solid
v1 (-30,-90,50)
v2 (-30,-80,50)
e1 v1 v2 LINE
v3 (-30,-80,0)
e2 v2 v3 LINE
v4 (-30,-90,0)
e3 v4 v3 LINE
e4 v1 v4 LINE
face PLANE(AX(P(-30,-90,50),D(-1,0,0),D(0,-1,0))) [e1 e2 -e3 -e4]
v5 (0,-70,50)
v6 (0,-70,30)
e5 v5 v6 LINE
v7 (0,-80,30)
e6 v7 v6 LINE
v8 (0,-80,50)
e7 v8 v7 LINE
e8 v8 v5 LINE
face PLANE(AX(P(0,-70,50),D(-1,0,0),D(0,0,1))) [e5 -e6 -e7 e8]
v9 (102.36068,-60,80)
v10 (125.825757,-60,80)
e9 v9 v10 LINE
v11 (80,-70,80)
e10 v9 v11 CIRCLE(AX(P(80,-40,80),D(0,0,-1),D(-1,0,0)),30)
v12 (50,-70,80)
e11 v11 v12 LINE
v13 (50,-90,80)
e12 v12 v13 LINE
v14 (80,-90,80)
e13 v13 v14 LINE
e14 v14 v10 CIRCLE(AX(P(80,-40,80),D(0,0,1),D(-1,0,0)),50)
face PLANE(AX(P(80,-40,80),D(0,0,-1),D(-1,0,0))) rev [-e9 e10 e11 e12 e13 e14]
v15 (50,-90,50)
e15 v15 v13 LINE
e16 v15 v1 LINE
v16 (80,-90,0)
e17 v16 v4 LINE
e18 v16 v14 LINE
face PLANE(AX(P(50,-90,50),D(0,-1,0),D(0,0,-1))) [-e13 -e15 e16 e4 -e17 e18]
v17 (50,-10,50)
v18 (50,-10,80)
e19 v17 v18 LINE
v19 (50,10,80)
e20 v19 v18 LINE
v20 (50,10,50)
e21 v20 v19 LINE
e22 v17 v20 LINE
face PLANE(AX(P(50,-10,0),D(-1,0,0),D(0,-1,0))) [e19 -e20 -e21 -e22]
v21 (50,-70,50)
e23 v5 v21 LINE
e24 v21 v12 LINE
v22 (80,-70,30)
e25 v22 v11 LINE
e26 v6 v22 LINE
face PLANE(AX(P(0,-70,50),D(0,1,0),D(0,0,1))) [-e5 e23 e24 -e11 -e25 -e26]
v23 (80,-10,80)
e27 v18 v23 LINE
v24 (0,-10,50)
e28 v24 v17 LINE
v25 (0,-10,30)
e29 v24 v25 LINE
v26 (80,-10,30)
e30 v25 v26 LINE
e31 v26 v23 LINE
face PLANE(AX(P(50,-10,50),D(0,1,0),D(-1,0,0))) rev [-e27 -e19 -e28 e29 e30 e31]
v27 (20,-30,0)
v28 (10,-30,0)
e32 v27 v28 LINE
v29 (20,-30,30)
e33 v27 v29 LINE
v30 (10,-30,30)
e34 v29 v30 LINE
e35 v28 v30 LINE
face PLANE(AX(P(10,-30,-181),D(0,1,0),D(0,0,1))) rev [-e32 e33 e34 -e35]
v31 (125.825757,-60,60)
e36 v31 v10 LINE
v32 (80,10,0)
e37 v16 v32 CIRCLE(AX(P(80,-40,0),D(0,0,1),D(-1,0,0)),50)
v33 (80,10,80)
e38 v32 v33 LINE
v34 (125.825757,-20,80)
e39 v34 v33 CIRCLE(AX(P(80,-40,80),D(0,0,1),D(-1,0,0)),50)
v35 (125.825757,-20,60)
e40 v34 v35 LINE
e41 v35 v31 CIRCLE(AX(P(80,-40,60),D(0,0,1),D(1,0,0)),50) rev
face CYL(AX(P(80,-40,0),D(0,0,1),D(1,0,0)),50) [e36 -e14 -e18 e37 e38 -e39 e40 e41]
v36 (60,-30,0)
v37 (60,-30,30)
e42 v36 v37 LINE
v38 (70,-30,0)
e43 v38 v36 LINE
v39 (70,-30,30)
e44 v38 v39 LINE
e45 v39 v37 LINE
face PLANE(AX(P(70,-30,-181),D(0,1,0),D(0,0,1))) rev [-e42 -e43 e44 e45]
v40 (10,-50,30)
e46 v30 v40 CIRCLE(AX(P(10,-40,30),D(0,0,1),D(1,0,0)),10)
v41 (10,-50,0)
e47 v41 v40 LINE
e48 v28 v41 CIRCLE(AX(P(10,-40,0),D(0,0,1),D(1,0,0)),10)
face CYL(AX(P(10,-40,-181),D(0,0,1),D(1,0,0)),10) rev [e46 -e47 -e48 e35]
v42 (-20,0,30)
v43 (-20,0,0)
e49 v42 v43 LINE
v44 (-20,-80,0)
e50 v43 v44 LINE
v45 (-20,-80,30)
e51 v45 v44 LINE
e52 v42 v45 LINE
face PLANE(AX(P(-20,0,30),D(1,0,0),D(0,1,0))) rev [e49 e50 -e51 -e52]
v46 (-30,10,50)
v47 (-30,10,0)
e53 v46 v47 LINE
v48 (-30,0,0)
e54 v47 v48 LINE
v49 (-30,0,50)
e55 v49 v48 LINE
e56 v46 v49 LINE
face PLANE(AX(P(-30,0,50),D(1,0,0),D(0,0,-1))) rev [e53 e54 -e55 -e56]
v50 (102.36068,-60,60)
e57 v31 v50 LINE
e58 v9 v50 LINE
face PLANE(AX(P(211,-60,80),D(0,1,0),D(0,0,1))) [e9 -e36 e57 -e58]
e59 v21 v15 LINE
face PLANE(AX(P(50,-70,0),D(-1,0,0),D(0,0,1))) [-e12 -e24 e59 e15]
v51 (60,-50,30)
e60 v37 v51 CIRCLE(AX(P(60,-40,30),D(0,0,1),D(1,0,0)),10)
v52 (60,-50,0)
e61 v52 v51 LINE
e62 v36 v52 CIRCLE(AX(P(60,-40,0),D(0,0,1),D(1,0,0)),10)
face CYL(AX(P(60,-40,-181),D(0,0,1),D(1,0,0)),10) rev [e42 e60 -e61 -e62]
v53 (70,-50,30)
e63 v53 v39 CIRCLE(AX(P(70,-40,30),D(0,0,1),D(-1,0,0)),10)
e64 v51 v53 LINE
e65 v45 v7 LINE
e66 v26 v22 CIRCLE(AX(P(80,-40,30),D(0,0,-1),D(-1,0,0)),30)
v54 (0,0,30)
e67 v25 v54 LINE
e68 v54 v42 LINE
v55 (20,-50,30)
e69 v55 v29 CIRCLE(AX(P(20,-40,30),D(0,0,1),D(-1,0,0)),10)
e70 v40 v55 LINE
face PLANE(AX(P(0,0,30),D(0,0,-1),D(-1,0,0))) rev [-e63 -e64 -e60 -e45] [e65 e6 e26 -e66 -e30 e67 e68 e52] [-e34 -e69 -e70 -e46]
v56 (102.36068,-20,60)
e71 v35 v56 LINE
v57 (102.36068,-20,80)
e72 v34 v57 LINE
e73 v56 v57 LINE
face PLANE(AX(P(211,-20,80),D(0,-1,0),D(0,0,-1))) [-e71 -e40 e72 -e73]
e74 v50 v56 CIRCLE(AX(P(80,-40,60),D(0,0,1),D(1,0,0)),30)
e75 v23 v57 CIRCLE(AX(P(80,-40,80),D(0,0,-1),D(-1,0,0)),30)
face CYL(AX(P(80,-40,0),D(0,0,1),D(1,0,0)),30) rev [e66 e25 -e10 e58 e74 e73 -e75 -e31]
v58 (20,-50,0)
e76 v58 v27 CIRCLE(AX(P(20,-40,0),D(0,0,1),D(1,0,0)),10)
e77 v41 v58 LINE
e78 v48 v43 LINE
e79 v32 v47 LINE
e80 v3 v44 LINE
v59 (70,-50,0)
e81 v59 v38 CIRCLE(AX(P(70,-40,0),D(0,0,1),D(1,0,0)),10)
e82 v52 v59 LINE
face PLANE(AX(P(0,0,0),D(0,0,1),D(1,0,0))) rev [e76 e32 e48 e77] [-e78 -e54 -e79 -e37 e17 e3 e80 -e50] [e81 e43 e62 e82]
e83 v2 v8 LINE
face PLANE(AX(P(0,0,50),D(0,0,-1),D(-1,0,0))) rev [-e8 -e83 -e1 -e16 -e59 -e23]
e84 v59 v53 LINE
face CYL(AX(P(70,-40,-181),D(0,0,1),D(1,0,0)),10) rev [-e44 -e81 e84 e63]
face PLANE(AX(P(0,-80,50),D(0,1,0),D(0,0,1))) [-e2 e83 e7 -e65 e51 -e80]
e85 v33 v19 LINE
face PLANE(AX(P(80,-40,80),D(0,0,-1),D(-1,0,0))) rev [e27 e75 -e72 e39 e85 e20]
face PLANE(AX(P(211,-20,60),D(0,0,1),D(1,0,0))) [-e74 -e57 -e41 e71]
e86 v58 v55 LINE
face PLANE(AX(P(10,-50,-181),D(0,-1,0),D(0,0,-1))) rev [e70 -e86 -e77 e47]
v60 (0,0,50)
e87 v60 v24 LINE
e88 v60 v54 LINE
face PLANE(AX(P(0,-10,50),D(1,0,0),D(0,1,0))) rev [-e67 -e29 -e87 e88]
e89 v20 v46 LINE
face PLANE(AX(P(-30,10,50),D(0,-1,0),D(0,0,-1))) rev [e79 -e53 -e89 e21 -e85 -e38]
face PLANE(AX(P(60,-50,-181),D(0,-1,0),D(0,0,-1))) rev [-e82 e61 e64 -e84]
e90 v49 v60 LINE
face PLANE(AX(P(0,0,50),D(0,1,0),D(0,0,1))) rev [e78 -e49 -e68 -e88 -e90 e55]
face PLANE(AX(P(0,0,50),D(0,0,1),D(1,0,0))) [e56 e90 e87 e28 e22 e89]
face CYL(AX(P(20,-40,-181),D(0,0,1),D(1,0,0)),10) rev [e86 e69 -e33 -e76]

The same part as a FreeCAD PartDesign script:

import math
import FreeCAD as App
import Part
import Sketcher
from FreeCAD import Vector

doc = App.newDocument("Part")
body = doc.addObject("PartDesign::Body", "Body")

sketch1 = doc.addObject("Sketcher::SketchObject", "Sketch")
body.addObject(sketch1)
sketch1.AttachmentSupport = (doc.XY_Plane, [""])
sketch1.MapMode = "FlatFace"
sketch1.addGeometry([
    Part.LineSegment(Vector(-30, 0, 0), Vector(0, 0, 0)),
    Part.LineSegment(Vector(0, 0, 0), Vector(0, -10, 0)),
    Part.LineSegment(Vector(0, -10, 0), Vector(50, -10, 0)),
    Part.LineSegment(Vector(50, -10, 0), Vector(50, 10, 0)),
    Part.LineSegment(Vector(50, 10, 0), Vector(-30, 10, 0)),
    Part.LineSegment(Vector(-30, 10, 0), Vector(-30, 0, 0)),
], False)
sketch1.addConstraint([
    Sketcher.Constraint("Coincident", 0, 2, 1, 1),
    Sketcher.Constraint("Coincident", 1, 2, 2, 1),
    Sketcher.Constraint("Coincident", 2, 2, 3, 1),
    Sketcher.Constraint("Coincident", 3, 2, 4, 1),
    Sketcher.Constraint("Coincident", 4, 2, 5, 1),
    Sketcher.Constraint("Coincident", 5, 2, 0, 1),
    Sketcher.Constraint("Horizontal", 0),
    Sketcher.Constraint("Vertical", 1),
    Sketcher.Constraint("Horizontal", 2),
    Sketcher.Constraint("Vertical", 3),
    Sketcher.Constraint("Horizontal", 4),
    Sketcher.Constraint("Vertical", 5),
    Sketcher.Constraint("Coincident", 0, 2, -1, 1),
    Sketcher.Constraint("Equal", 1, 5),
    Sketcher.Constraint("DistanceX", 0, 1, 0, 2, 30.0),
    Sketcher.Constraint("DistanceX", 2, 1, 2, 2, 50.0),
    Sketcher.Constraint("DistanceY", 1, 2, 1, 1, 10.0),
])
pad1 = doc.addObject("PartDesign::Pad", "Pad")
body.addObject(pad1)
pad1.Profile = sketch1
pad1.Length = 50

sketch2 = doc.addObject("Sketcher::SketchObject", "Sketch001")
body.addObject(sketch2)
sketch2.AttachmentSupport = (doc.XY_Plane, [""])
sketch2.MapMode = "FlatFace"
sketch2.addGeometry([
    Part.LineSegment(Vector(0, 0, 0), Vector(0, -10, 0)),
    Part.LineSegment(Vector(0, -10, 0), Vector(80, -10, 0)),
    Part.ArcOfCircle(Part.Circle(Vector(80, -40, 0), Vector(0, 0, 1), 30), math.radians(-90), math.radians(90)),
    Part.LineSegment(Vector(80, -70, 0), Vector(0, -70, 0)),
    Part.LineSegment(Vector(0, -70, 0), Vector(0, -80, 0)),
    Part.LineSegment(Vector(0, -80, 0), Vector(-20, -80, 0)),
    Part.LineSegment(Vector(-20, -80, 0), Vector(-20, 0, 0)),
    Part.LineSegment(Vector(-20, 0, 0), Vector(0, 0, 0)),
], False)
sketch2.addConstraint([
    Sketcher.Constraint("Coincident", 0, 2, 1, 1),
    Sketcher.Constraint("Tangent", 1, 2, 2, 2),
    Sketcher.Constraint("Tangent", 2, 1, 3, 1),
    Sketcher.Constraint("Coincident", 3, 2, 4, 1),
    Sketcher.Constraint("Coincident", 4, 2, 5, 1),
    Sketcher.Constraint("Coincident", 5, 2, 6, 1),
    Sketcher.Constraint("Coincident", 6, 2, 7, 1),
    Sketcher.Constraint("Coincident", 7, 2, 0, 1),
    Sketcher.Constraint("Vertical", 0),
    Sketcher.Constraint("Horizontal", 1),
    Sketcher.Constraint("Horizontal", 3),
    Sketcher.Constraint("Vertical", 4),
    Sketcher.Constraint("Horizontal", 5),
    Sketcher.Constraint("Vertical", 6),
    Sketcher.Constraint("Horizontal", 7),
    Sketcher.Constraint("Coincident", 7, 2, -1, 1),
    Sketcher.Constraint("PointOnObject", 3, 2, -2),
    Sketcher.Constraint("Equal", 0, 4),
    Sketcher.Constraint("Equal", 3, 6),
    Sketcher.Constraint("Radius", 2, 30.0),
    Sketcher.Constraint("DistanceX", 1, 1, 1, 2, 80.0),
    Sketcher.Constraint("DistanceX", 5, 2, 5, 1, 20.0),
])
pad2 = doc.addObject("PartDesign::Pad", "Pad001")
body.addObject(pad2)
pad2.Profile = sketch2
pad2.Length = 30

sketch3 = doc.addObject("Sketcher::SketchObject", "Sketch002")
body.addObject(sketch3)
sketch3.AttachmentSupport = (doc.XY_Plane, [""])
sketch3.MapMode = "FlatFace"
sketch3.addGeometry([
    Part.LineSegment(Vector(0, -80, 0), Vector(0, -70, 0)),
    Part.LineSegment(Vector(0, -70, 0), Vector(50, -70, 0)),
    Part.LineSegment(Vector(50, -70, 0), Vector(50, -90, 0)),
    Part.LineSegment(Vector(50, -90, 0), Vector(-30, -90, 0)),
    Part.LineSegment(Vector(-30, -90, 0), Vector(-30, -80, 0)),
    Part.LineSegment(Vector(-30, -80, 0), Vector(0, -80, 0)),
], False)
sketch3.addConstraint([
    Sketcher.Constraint("Coincident", 0, 2, 1, 1),
    Sketcher.Constraint("Coincident", 1, 2, 2, 1),
    Sketcher.Constraint("Coincident", 2, 2, 3, 1),
    Sketcher.Constraint("Coincident", 3, 2, 4, 1),
    Sketcher.Constraint("Coincident", 4, 2, 5, 1),
    Sketcher.Constraint("Coincident", 5, 2, 0, 1),
    Sketcher.Constraint("Vertical", 0),
    Sketcher.Constraint("Horizontal", 1),
    Sketcher.Constraint("Vertical", 2),
    Sketcher.Constraint("Horizontal", 3),
    Sketcher.Constraint("Vertical", 4),
    Sketcher.Constraint("Horizontal", 5),
    Sketcher.Constraint("PointOnObject", 0, 2, -2),
    Sketcher.Constraint("Equal", 0, 4),
    Sketcher.Constraint("DistanceX", 1, 1, 1, 2, 50.0),
    Sketcher.Constraint("DistanceX", 3, 2, 3, 1, 80.0),
    Sketcher.Constraint("DistanceY", 0, 1, 0, 2, 10.0),
    Sketcher.Constraint("DistanceY", 0, 2, -1, 1, 70.0),
])
pad3 = doc.addObject("PartDesign::Pad", "Pad002")
body.addObject(pad3)
pad3.Profile = sketch3
pad3.Length = 50

sketch4 = doc.addObject("Sketcher::SketchObject", "Sketch003")
body.addObject(sketch4)
sketch4.AttachmentSupport = (doc.XY_Plane, [""])
sketch4.MapMode = "FlatFace"
sketch4.AttachmentOffset = App.Placement(Vector(0, 0, 30), App.Rotation())
sketch4.addGeometry([
    Part.LineSegment(Vector(50, -90, 0), Vector(80, -90, 0)),
    Part.ArcOfCircle(Part.Circle(Vector(80, -40, 0), Vector(0, 0, 1), 50), math.radians(-90), math.radians(90)),
    Part.LineSegment(Vector(80, 10, 0), Vector(50, 10, 0)),
    Part.LineSegment(Vector(50, 10, 0), Vector(50, -10, 0)),
    Part.LineSegment(Vector(50, -10, 0), Vector(80, -10, 0)),
    Part.ArcOfCircle(Part.Circle(Vector(80, -40, 0), Vector(0, 0, 1), 30), math.radians(-90), math.radians(90)),
    Part.LineSegment(Vector(80, -70, 0), Vector(50, -70, 0)),
    Part.LineSegment(Vector(50, -70, 0), Vector(50, -90, 0)),
], False)
sketch4.addConstraint([
    Sketcher.Constraint("Tangent", 0, 2, 1, 1),
    Sketcher.Constraint("Tangent", 1, 2, 2, 1),
    Sketcher.Constraint("Coincident", 2, 2, 3, 1),
    Sketcher.Constraint("Coincident", 3, 2, 4, 1),
    Sketcher.Constraint("Tangent", 4, 2, 5, 2),
    Sketcher.Constraint("Tangent", 5, 1, 6, 1),
    Sketcher.Constraint("Coincident", 6, 2, 7, 1),
    Sketcher.Constraint("Coincident", 7, 2, 0, 1),
    Sketcher.Constraint("Horizontal", 0),
    Sketcher.Constraint("Horizontal", 2),
    Sketcher.Constraint("Vertical", 3),
    Sketcher.Constraint("Horizontal", 4),
    Sketcher.Constraint("Horizontal", 6),
    Sketcher.Constraint("Vertical", 7),
    Sketcher.Constraint("Coincident", 5, 3, 1, 3),
    Sketcher.Constraint("Vertical", 3, 2, 6, 2),
    Sketcher.Constraint("Radius", 1, 50.0),
    Sketcher.Constraint("Radius", 5, 30.0),
    Sketcher.Constraint("DistanceX", 0, 1, 0, 2, 30.0),
    Sketcher.Constraint("DistanceX", -1, 1, 1, 3, 80.0),
    Sketcher.Constraint("DistanceY", 1, 3, -1, 1, 40.0),
])
pad4 = doc.addObject("PartDesign::Pad", "Pad003")
body.addObject(pad4)
pad4.Profile = sketch4
pad4.Type = "TwoLengths"
pad4.Length = 50
pad4.Length2 = 30

sketch5 = doc.addObject("Sketcher::SketchObject", "Sketch004")
body.addObject(sketch5)
sketch5.AttachmentSupport = (doc.YZ_Plane, [""])
sketch5.MapMode = "FlatFace"
sketch5.addGeometry([
    Part.LineSegment(Vector(-20, 80, 0), Vector(-60, 80, 0)),
    Part.LineSegment(Vector(-60, 80, 0), Vector(-60, 60, 0)),
    Part.LineSegment(Vector(-60, 60, 0), Vector(-20, 60, 0)),
    Part.LineSegment(Vector(-20, 60, 0), Vector(-20, 80, 0)),
], False)
sketch5.addConstraint([
    Sketcher.Constraint("Coincident", 0, 2, 1, 1),
    Sketcher.Constraint("Coincident", 1, 2, 2, 1),
    Sketcher.Constraint("Coincident", 2, 2, 3, 1),
    Sketcher.Constraint("Coincident", 3, 2, 0, 1),
    Sketcher.Constraint("Horizontal", 0),
    Sketcher.Constraint("Vertical", 1),
    Sketcher.Constraint("Horizontal", 2),
    Sketcher.Constraint("Vertical", 3),
    Sketcher.Constraint("DistanceX", 0, 2, 0, 1, 40.0),
    Sketcher.Constraint("DistanceY", 1, 2, 1, 1, 20.0),
    Sketcher.Constraint("DistanceX", 0, 2, -1, 1, 60.0),
    Sketcher.Constraint("DistanceY", -1, 1, 0, 2, 80.0),
])
pocket1 = doc.addObject("PartDesign::Pocket", "Pocket")
body.addObject(pocket1)
pocket1.Profile = sketch5
pocket1.Length = 211
pocket1.Reversed = True

sketch6 = doc.addObject("Sketcher::SketchObject", "Sketch005")
body.addObject(sketch6)
sketch6.AttachmentSupport = (doc.XY_Plane, [""])
sketch6.MapMode = "FlatFace"
sketch6.AttachmentOffset = App.Placement(Vector(0, 0, 30), App.Rotation())
sketch6.addGeometry([
    Part.LineSegment(Vector(20, -30, 0), Vector(10, -30, 0)),
    Part.ArcOfCircle(Part.Circle(Vector(10, -40, 0), Vector(0, 0, 1), 10), math.radians(90), math.radians(270)),
    Part.LineSegment(Vector(10, -50, 0), Vector(20, -50, 0)),
    Part.ArcOfCircle(Part.Circle(Vector(20, -40, 0), Vector(0, 0, 1), 10), math.radians(-90), math.radians(90)),
], False)
sketch6.addConstraint([
    Sketcher.Constraint("Tangent", 0, 2, 1, 1),
    Sketcher.Constraint("Tangent", 1, 2, 2, 1),
    Sketcher.Constraint("Tangent", 2, 2, 3, 1),
    Sketcher.Constraint("Tangent", 3, 2, 0, 1),
    Sketcher.Constraint("Horizontal", 0),
    Sketcher.Constraint("Horizontal", 2),
    Sketcher.Constraint("Radius", 1, 10.0),
    Sketcher.Constraint("DistanceX", 0, 2, 0, 1, 10.0),
    Sketcher.Constraint("DistanceX", -1, 1, 1, 3, 10.0),
    Sketcher.Constraint("DistanceY", 1, 3, -1, 1, 40.0),
])
pocket2 = doc.addObject("PartDesign::Pocket", "Pocket001")
body.addObject(pocket2)
pocket2.Profile = sketch6
pocket2.Length = 211

sketch7 = doc.addObject("Sketcher::SketchObject", "Sketch006")
body.addObject(sketch7)
sketch7.AttachmentSupport = (doc.XY_Plane, [""])
sketch7.MapMode = "FlatFace"
sketch7.AttachmentOffset = App.Placement(Vector(0, 0, 30), App.Rotation())
sketch7.addGeometry([
    Part.LineSegment(Vector(70, -30, 0), Vector(60, -30, 0)),
    Part.ArcOfCircle(Part.Circle(Vector(60, -40, 0), Vector(0, 0, 1), 10), math.radians(90), math.radians(270)),
    Part.LineSegment(Vector(60, -50, 0), Vector(70, -50, 0)),
    Part.ArcOfCircle(Part.Circle(Vector(70, -40, 0), Vector(0, 0, 1), 10), math.radians(-90), math.radians(90)),
], False)
sketch7.addConstraint([
    Sketcher.Constraint("Tangent", 0, 2, 1, 1),
    Sketcher.Constraint("Tangent", 1, 2, 2, 1),
    Sketcher.Constraint("Tangent", 2, 2, 3, 1),
    Sketcher.Constraint("Tangent", 3, 2, 0, 1),
    Sketcher.Constraint("Horizontal", 0),
    Sketcher.Constraint("Horizontal", 2),
    Sketcher.Constraint("Radius", 1, 10.0),
    Sketcher.Constraint("DistanceX", 0, 2, 0, 1, 10.0),
    Sketcher.Constraint("DistanceX", -1, 1, 1, 3, 60.0),
    Sketcher.Constraint("DistanceY", 1, 3, -1, 1, 40.0),
])
pocket3 = doc.addObject("PartDesign::Pocket", "Pocket002")
body.addObject(pocket3)
pocket3.Profile = sketch7
pocket3.Length = 211

doc.recompute()
